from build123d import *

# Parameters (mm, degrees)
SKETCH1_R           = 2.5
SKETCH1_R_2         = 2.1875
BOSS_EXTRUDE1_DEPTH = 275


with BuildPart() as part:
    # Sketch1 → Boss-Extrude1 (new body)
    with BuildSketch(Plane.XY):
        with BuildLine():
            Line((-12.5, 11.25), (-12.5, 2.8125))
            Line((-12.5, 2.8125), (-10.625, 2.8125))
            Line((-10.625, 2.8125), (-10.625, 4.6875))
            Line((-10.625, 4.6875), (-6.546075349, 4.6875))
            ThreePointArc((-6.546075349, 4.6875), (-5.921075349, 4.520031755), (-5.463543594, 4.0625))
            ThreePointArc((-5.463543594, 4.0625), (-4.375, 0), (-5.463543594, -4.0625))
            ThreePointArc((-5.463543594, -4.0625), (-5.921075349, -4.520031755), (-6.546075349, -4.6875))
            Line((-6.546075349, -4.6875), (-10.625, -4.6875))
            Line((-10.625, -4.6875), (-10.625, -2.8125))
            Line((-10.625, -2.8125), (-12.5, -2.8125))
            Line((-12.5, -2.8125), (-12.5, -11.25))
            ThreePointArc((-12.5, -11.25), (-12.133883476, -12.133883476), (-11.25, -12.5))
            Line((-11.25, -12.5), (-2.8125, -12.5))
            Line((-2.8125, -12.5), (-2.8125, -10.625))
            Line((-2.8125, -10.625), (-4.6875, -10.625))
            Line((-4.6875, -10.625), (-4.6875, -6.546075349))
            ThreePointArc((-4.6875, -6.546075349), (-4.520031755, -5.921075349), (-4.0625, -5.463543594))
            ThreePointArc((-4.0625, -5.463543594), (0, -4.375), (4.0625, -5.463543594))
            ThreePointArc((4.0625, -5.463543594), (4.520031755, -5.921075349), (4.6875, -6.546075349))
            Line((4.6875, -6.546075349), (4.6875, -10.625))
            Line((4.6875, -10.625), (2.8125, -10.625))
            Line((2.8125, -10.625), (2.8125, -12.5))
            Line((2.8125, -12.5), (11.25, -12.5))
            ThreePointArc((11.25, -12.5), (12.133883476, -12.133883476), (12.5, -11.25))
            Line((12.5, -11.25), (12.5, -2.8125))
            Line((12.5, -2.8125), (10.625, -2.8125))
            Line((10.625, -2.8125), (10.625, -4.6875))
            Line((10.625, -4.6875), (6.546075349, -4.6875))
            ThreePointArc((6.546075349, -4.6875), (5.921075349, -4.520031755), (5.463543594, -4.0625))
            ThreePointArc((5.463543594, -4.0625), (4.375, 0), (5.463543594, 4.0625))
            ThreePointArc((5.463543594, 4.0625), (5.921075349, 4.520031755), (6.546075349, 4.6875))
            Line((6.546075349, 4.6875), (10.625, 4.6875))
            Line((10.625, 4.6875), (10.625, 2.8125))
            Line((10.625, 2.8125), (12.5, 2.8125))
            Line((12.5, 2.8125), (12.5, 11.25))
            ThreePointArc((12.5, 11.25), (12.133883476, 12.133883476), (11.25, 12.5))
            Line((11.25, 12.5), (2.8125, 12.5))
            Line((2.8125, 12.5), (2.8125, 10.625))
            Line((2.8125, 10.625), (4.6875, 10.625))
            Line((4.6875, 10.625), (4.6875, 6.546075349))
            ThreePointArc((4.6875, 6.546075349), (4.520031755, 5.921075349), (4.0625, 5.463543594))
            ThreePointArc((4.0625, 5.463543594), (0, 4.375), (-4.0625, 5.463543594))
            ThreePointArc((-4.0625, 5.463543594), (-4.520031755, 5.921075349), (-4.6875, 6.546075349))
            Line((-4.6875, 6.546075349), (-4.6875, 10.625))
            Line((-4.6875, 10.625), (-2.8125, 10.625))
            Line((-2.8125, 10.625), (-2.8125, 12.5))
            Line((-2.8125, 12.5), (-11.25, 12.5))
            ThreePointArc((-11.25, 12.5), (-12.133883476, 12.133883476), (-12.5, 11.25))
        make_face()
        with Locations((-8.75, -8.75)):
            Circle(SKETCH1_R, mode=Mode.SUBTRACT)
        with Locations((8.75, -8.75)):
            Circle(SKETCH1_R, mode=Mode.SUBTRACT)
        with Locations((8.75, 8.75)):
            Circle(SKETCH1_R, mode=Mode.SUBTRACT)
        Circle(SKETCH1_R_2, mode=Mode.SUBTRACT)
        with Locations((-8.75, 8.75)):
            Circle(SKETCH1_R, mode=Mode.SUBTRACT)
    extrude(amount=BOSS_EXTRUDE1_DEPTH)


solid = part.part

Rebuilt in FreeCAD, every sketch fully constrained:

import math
import FreeCAD as App
import Part
import Sketcher

doc = App.newDocument("Part")
body = doc.addObject("PartDesign::Body", "Body")

# Sketch on XY plane
sketch1 = doc.addObject("Sketcher::SketchObject", "Sketch")
body.addObject(sketch1)
sketch1.AttachmentSupport = (doc.XY_Plane, [""])
sketch1.MapMode = "FlatFace"
sketch1.addGeometry([
    Part.LineSegment(App.Vector(-12.5, 11.2, 0), App.Vector(-12.5, 2.8, 0)),  # 0
    Part.LineSegment(App.Vector(-12.5, 2.8, 0), App.Vector(-10.6, 2.8, 0)),  # 1
    Part.LineSegment(App.Vector(-10.6, 2.8, 0), App.Vector(-10.6, 4.7, 0)),  # 2
    Part.LineSegment(App.Vector(-10.6, 4.7, 0), App.Vector(-6.5, 4.7, 0)),  # 3
    Part.ArcOfCircle(Part.Circle(App.Vector(-6.5, 3.4, 0), App.Vector(0, 0, 1), 1.2), math.radians(30), math.radians(90)),  # 4
    Part.ArcOfCircle(Part.Circle(App.Vector(-12.5, 0, 0), App.Vector(0, 0, 1), 8.1), math.radians(-30), math.radians(30)),  # 5
    Part.ArcOfCircle(Part.Circle(App.Vector(-6.5, -3.4, 0), App.Vector(0, 0, 1), 1.2), math.radians(-90), math.radians(-30)),  # 6
    Part.LineSegment(App.Vector(-6.5, -4.7, 0), App.Vector(-10.6, -4.7, 0)),  # 7
    Part.LineSegment(App.Vector(-10.6, -4.7, 0), App.Vector(-10.6, -2.8, 0)),  # 8
    Part.LineSegment(App.Vector(-10.6, -2.8, 0), App.Vector(-12.5, -2.8, 0)),  # 9
    Part.LineSegment(App.Vector(-12.5, -2.8, 0), App.Vector(-12.5, -11.2, 0)),  # 10
    Part.ArcOfCircle(Part.Circle(App.Vector(-11.2, -11.2, 0), App.Vector(0, 0, 1), 1.3), math.radians(-180), math.radians(-90)),  # 11
    Part.LineSegment(App.Vector(-11.2, -12.5, 0), App.Vector(-2.8, -12.5, 0)),  # 12
    Part.LineSegment(App.Vector(-2.8, -12.5, 0), App.Vector(-2.8, -10.6, 0)),  # 13
    Part.LineSegment(App.Vector(-2.8, -10.6, 0), App.Vector(-4.7, -10.6, 0)),  # 14
    Part.LineSegment(App.Vector(-4.7, -10.6, 0), App.Vector(-4.7, -6.5, 0)),  # 15
    Part.ArcOfCircle(Part.Circle(App.Vector(-3.4, -6.5, 0), App.Vector(0, 0, 1), 1.2), math.radians(120), math.radians(180)),  # 16
    Part.ArcOfCircle(Part.Circle(App.Vector(0, -12.5, 0), App.Vector(0, 0, 1), 8.1), math.radians(60), math.radians(120)),  # 17
    Part.ArcOfCircle(Part.Circle(App.Vector(3.4, -6.5, 0), App.Vector(0, 0, 1), 1.2), math.radians(0), math.radians(60)),  # 18
    Part.LineSegment(App.Vector(4.7, -6.5, 0), App.Vector(4.7, -10.6, 0)),  # 19
    Part.LineSegment(App.Vector(4.7, -10.6, 0), App.Vector(2.8, -10.6, 0)),  # 20
    Part.LineSegment(App.Vector(2.8, -10.6, 0), App.Vector(2.8, -12.5, 0)),  # 21
    Part.LineSegment(App.Vector(2.8, -12.5, 0), App.Vector(11.2, -12.5, 0)),  # 22
    Part.ArcOfCircle(Part.Circle(App.Vector(11.2, -11.2, 0), App.Vector(0, 0, 1), 1.3), math.radians(-90), math.radians(0)),  # 23
    Part.LineSegment(App.Vector(12.5, -11.2, 0), App.Vector(12.5, -2.8, 0)),  # 24
    Part.LineSegment(App.Vector(12.5, -2.8, 0), App.Vector(10.6, -2.8, 0)),  # 25
    Part.LineSegment(App.Vector(10.6, -2.8, 0), App.Vector(10.6, -4.7, 0)),  # 26
    Part.LineSegment(App.Vector(10.6, -4.7, 0), App.Vector(6.5, -4.7, 0)),  # 27
    Part.ArcOfCircle(Part.Circle(App.Vector(6.5, -3.4, 0), App.Vector(0, 0, 1), 1.2), math.radians(-150), math.radians(-90)),  # 28
    Part.ArcOfCircle(Part.Circle(App.Vector(12.5, 0, 0), App.Vector(0, 0, 1), 8.1), math.radians(150), math.radians(210)),  # 29
    Part.ArcOfCircle(Part.Circle(App.Vector(6.5, 3.4, 0), App.Vector(0, 0, 1), 1.2), math.radians(90), math.radians(150)),  # 30
    Part.LineSegment(App.Vector(6.5, 4.7, 0), App.Vector(10.6, 4.7, 0)),  # 31
    Part.LineSegment(App.Vector(10.6, 4.7, 0), App.Vector(10.6, 2.8, 0)),  # 32
    Part.LineSegment(App.Vector(10.6, 2.8, 0), App.Vector(12.5, 2.8, 0)),  # 33
    Part.LineSegment(App.Vector(12.5, 2.8, 0), App.Vector(12.5, 11.2, 0)),  # 34
    Part.ArcOfCircle(Part.Circle(App.Vector(11.2, 11.2, 0), App.Vector(0, 0, 1), 1.3), math.radians(0), math.radians(90)),  # 35
    Part.LineSegment(App.Vector(11.2, 12.5, 0), App.Vector(2.8, 12.5, 0)),  # 36
    Part.LineSegment(App.Vector(2.8, 12.5, 0), App.Vector(2.8, 10.6, 0)),  # 37
    Part.LineSegment(App.Vector(2.8, 10.6, 0), App.Vector(4.7, 10.6, 0)),  # 38
    Part.LineSegment(App.Vector(4.7, 10.6, 0), App.Vector(4.7, 6.5, 0)),  # 39
    Part.ArcOfCircle(Part.Circle(App.Vector(3.4, 6.5, 0), App.Vector(0, 0, 1), 1.2), math.radians(-60), math.radians(0)),  # 40
    Part.ArcOfCircle(Part.Circle(App.Vector(0, 12.5, 0), App.Vector(0, 0, 1), 8.1), math.radians(-120), math.radians(-60)),  # 41
    Part.ArcOfCircle(Part.Circle(App.Vector(-3.4, 6.5, 0), App.Vector(0, 0, 1), 1.2), math.radians(180), math.radians(240)),  # 42
    Part.LineSegment(App.Vector(-4.7, 6.5, 0), App.Vector(-4.7, 10.6, 0)),  # 43
    Part.LineSegment(App.Vector(-4.7, 10.6, 0), App.Vector(-2.8, 10.6, 0)),  # 44
    Part.LineSegment(App.Vector(-2.8, 10.6, 0), App.Vector(-2.8, 12.5, 0)),  # 45
    Part.LineSegment(App.Vector(-2.8, 12.5, 0), App.Vector(-11.2, 12.5, 0)),  # 46
    Part.ArcOfCircle(Part.Circle(App.Vector(-11.2, 11.2, 0), App.Vector(0, 0, 1), 1.3), math.radians(90), math.radians(180)),  # 47
    Part.Circle(App.Vector(-8.8, -8.8, 0), App.Vector(0, 0, 1), 2.5),  # 48
    Part.Circle(App.Vector(8.8, -8.8, 0), App.Vector(0, 0, 1), 2.5),  # 49
    Part.Circle(App.Vector(-8.8, 8.8, 0), App.Vector(0, 0, 1), 2.5),  # 50
    Part.Circle(App.Vector(0, 0, 0), App.Vector(0, 0, 1), 2.2),  # 51
    Part.Circle(App.Vector(8.8, 8.8, 0), App.Vector(0, 0, 1), 2.5),  # 52
], False)
sketch1.addConstraint([
    Sketcher.Constraint("Coincident", 0, 2, 1, 1),
    Sketcher.Constraint("Coincident", 1, 2, 2, 1),
    Sketcher.Constraint("Coincident", 2, 2, 3, 1),
    Sketcher.Constraint("Tangent", 3, 2, 4, 2),
    Sketcher.Constraint("Tangent", 4, 1, 5, 2),
    Sketcher.Constraint("Tangent", 5, 1, 6, 2),
    Sketcher.Constraint("Tangent", 6, 1, 7, 1),
    Sketcher.Constraint("Coincident", 7, 2, 8, 1),
    Sketcher.Constraint("Coincident", 8, 2, 9, 1),
    Sketcher.Constraint("Coincident", 9, 2, 10, 1),
    Sketcher.Constraint("Tangent", 10, 2, 11, 1),
    Sketcher.Constraint("Tangent", 11, 2, 12, 1),
    Sketcher.Constraint("Coincident", 12, 2, 13, 1),
    Sketcher.Constraint("Coincident", 13, 2, 14, 1),
    Sketcher.Constraint("Coincident", 14, 2, 15, 1),
    Sketcher.Constraint("Tangent", 15, 2, 16, 2),
    Sketcher.Constraint("Tangent", 16, 1, 17, 2),
    Sketcher.Constraint("Tangent", 17, 1, 18, 2),
    Sketcher.Constraint("Tangent", 18, 1, 19, 1),
    Sketcher.Constraint("Coincident", 19, 2, 20, 1),
    Sketcher.Constraint("Coincident", 20, 2, 21, 1),
    Sketcher.Constraint("Coincident", 21, 2, 22, 1),
    Sketcher.Constraint("Tangent", 22, 2, 23, 1),
    Sketcher.Constraint("Tangent", 23, 2, 24, 1),
    Sketcher.Constraint("Coincident", 24, 2, 25, 1),
    Sketcher.Constraint("Coincident", 25, 2, 26, 1),
    Sketcher.Constraint("Coincident", 26, 2, 27, 1),
    Sketcher.Constraint("Tangent", 27, 2, 28, 2),
    Sketcher.Constraint("Tangent", 28, 1, 29, 2),
    Sketcher.Constraint("Tangent", 29, 1, 30, 2),
    Sketcher.Constraint("Tangent", 30, 1, 31, 1),
    Sketcher.Constraint("Coincident", 31, 2, 32, 1),
    Sketcher.Constraint("Coincident", 32, 2, 33, 1),
    Sketcher.Constraint("Coincident", 33, 2, 34, 1),
    Sketcher.Constraint("Tangent", 34, 2, 35, 1),
    Sketcher.Constraint("Tangent", 35, 2, 36, 1),
    Sketcher.Constraint("Coincident", 36, 2, 37, 1),
    Sketcher.Constraint("Coincident", 37, 2, 38, 1),
    Sketcher.Constraint("Coincident", 38, 2, 39, 1),
    Sketcher.Constraint("Tangent", 39, 2, 40, 2),
    Sketcher.Constraint("Tangent", 40, 1, 41, 2),
    Sketcher.Constraint("Tangent", 41, 1, 42, 2),
    Sketcher.Constraint("Tangent", 42, 1, 43, 1),
    Sketcher.Constraint("Coincident", 43, 2, 44, 1),
    Sketcher.Constraint("Coincident", 44, 2, 45, 1),
    Sketcher.Constraint("Coincident", 45, 2, 46, 1),
    Sketcher.Constraint("Tangent", 46, 2, 47, 1),
    Sketcher.Constraint("Tangent", 47, 2, 0, 1),
    Sketcher.Constraint("Vertical", 0),
    Sketcher.Constraint("Horizontal", 1),
    Sketcher.Constraint("Vertical", 2),
    Sketcher.Constraint("Horizontal", 3),
    Sketcher.Constraint("Horizontal", 7),
    Sketcher.Constraint("Vertical", 8),
    Sketcher.Constraint("Horizontal", 9),
    Sketcher.Constraint("Vertical", 10),
    Sketcher.Constraint("Horizontal", 12),
    Sketcher.Constraint("Vertical", 13),
    Sketcher.Constraint("Horizontal", 14),
    Sketcher.Constraint("Vertical", 15),
    Sketcher.Constraint("Vertical", 19),
    Sketcher.Constraint("Horizontal", 20),
    Sketcher.Constraint("Vertical", 21),
    Sketcher.Constraint("Horizontal", 22),
    Sketcher.Constraint("Vertical", 24),
    Sketcher.Constraint("Horizontal", 25),
    Sketcher.Constraint("Vertical", 26),
    Sketcher.Constraint("Horizontal", 27),
    Sketcher.Constraint("Horizontal", 31),
    Sketcher.Constraint("Vertical", 32),
    Sketcher.Constraint("Horizontal", 33),
    Sketcher.Constraint("Vertical", 34),
    Sketcher.Constraint("Horizontal", 36),
    Sketcher.Constraint("Vertical", 37),
    Sketcher.Constraint("Horizontal", 38),
    Sketcher.Constraint("Vertical", 39),
    Sketcher.Constraint("Vertical", 43),
    Sketcher.Constraint("Horizontal", 44),
    Sketcher.Constraint("Vertical", 45),
    Sketcher.Constraint("Horizontal", 46),
    Sketcher.Constraint("Coincident", 51, 3, -1, 1),
    Sketcher.Constraint("Equal", 4, 6),
    Sketcher.Constraint("Equal", 6, 11),
    Sketcher.Constraint("Equal", 11, 16),
    Sketcher.Constraint("Equal", 5, 17),
    Sketcher.Constraint("Equal", 16, 18),
    Sketcher.Constraint("Equal", 18, 23),
    Sketcher.Constraint("Equal", 23, 28),
    Sketcher.Constraint("Equal", 17, 29),
    Sketcher.Constraint("Equal", 28, 30),
    Sketcher.Constraint("Equal", 30, 35),
    Sketcher.Constraint("Equal", 35, 40),
    Sketcher.Constraint("Equal", 29, 41),
    Sketcher.Constraint("Equal", 40, 42),
    Sketcher.Constraint("Equal", 42, 47),
    Sketcher.Constraint("Equal", 48, 49),
    Sketcher.Constraint("Equal", 49, 50),
    Sketcher.Constraint("Equal", 50, 52),
    Sketcher.Constraint("Symmetric", 4, 3, 28, 3, -1, 1),
    Sketcher.Constraint("Symmetric", 6, 3, 30, 3, -1, 1),
    Sketcher.Constraint("Symmetric", 11, 3, 35, 3, -1, 1),
    Sketcher.Constraint("Symmetric", 16, 3, 40, 3, -1, 1),
    Sketcher.Constraint("Symmetric", 18, 3, 42, 3, -1, 1),
    Sketcher.Constraint("Symmetric", 23, 3, 47, 3, -1, 1),
    Sketcher.Constraint("Symmetric", 49, 3, 50, 3, -1, 1),
    Sketcher.Constraint("Symmetric", 48, 3, 52, 3, -1, 1),
    Sketcher.Constraint("Symmetric", 1, 2, 25, 2, -1, 1),
    Sketcher.Constraint("Symmetric", 8, 2, 32, 2, -1, 1),
    Sketcher.Constraint("Symmetric", 13, 2, 37, 2, -1, 1),
    Sketcher.Constraint("Symmetric", 20, 2, 44, 2, -1, 1),
    Sketcher.Constraint("Symmetric", 16, 3, 18, 3, -2),
    Sketcher.Constraint("Symmetric", 11, 3, 23, 3, -2),
    Sketcher.Constraint("Symmetric", 6, 3, 28, 3, -2),
    Sketcher.Constraint("Symmetric", 48, 3, 49, 3, -2),
    Sketcher.Constraint("Symmetric", 13, 2, 20, 2, -2),
    Sketcher.Constraint("Symmetric", 8, 2, 25, 2, -2),
    Sketcher.Constraint("Horizontal", 17, 3, 11, 2),
    Sketcher.Constraint("Vertical", 5, 3, 0, 2),
    Sketcher.Constraint("Equal", 9, 14),
    Sketcher.Constraint("Equal", 46, 0),
    Sketcher.Constraint("Equal", 44, 2),
    Sketcher.Constraint("Equal", 8, 13),
    Sketcher.Constraint("Equal", 31, 15),
    Sketcher.Constraint("Diameter", 48, 5.0),
    Sketcher.Constraint("Radius", 4, 1.25),
    Sketcher.Constraint("Diameter", 51, 4.375),
    Sketcher.Constraint("Radius", 5, 8.125),
    Sketcher.Constraint("DistanceX", 5, 3, -1, 1, 12.5),
    Sketcher.Constraint("DistanceX", 1, 1, 1, 2, 1.875),
    Sketcher.Constraint("DistanceX", 48, 3, -1, 1, 8.75),
    Sketcher.Constraint("DistanceY", 48, 3, -1, 1, 8.75),
    Sketcher.Constraint("DistanceX", 12, 1, 12, 2, 8.4375),
])
pad1 = doc.addObject("PartDesign::Pad", "Pad")
body.addObject(pad1)
pad1.Profile = sketch1
pad1.Length = 275

doc.recompute()
